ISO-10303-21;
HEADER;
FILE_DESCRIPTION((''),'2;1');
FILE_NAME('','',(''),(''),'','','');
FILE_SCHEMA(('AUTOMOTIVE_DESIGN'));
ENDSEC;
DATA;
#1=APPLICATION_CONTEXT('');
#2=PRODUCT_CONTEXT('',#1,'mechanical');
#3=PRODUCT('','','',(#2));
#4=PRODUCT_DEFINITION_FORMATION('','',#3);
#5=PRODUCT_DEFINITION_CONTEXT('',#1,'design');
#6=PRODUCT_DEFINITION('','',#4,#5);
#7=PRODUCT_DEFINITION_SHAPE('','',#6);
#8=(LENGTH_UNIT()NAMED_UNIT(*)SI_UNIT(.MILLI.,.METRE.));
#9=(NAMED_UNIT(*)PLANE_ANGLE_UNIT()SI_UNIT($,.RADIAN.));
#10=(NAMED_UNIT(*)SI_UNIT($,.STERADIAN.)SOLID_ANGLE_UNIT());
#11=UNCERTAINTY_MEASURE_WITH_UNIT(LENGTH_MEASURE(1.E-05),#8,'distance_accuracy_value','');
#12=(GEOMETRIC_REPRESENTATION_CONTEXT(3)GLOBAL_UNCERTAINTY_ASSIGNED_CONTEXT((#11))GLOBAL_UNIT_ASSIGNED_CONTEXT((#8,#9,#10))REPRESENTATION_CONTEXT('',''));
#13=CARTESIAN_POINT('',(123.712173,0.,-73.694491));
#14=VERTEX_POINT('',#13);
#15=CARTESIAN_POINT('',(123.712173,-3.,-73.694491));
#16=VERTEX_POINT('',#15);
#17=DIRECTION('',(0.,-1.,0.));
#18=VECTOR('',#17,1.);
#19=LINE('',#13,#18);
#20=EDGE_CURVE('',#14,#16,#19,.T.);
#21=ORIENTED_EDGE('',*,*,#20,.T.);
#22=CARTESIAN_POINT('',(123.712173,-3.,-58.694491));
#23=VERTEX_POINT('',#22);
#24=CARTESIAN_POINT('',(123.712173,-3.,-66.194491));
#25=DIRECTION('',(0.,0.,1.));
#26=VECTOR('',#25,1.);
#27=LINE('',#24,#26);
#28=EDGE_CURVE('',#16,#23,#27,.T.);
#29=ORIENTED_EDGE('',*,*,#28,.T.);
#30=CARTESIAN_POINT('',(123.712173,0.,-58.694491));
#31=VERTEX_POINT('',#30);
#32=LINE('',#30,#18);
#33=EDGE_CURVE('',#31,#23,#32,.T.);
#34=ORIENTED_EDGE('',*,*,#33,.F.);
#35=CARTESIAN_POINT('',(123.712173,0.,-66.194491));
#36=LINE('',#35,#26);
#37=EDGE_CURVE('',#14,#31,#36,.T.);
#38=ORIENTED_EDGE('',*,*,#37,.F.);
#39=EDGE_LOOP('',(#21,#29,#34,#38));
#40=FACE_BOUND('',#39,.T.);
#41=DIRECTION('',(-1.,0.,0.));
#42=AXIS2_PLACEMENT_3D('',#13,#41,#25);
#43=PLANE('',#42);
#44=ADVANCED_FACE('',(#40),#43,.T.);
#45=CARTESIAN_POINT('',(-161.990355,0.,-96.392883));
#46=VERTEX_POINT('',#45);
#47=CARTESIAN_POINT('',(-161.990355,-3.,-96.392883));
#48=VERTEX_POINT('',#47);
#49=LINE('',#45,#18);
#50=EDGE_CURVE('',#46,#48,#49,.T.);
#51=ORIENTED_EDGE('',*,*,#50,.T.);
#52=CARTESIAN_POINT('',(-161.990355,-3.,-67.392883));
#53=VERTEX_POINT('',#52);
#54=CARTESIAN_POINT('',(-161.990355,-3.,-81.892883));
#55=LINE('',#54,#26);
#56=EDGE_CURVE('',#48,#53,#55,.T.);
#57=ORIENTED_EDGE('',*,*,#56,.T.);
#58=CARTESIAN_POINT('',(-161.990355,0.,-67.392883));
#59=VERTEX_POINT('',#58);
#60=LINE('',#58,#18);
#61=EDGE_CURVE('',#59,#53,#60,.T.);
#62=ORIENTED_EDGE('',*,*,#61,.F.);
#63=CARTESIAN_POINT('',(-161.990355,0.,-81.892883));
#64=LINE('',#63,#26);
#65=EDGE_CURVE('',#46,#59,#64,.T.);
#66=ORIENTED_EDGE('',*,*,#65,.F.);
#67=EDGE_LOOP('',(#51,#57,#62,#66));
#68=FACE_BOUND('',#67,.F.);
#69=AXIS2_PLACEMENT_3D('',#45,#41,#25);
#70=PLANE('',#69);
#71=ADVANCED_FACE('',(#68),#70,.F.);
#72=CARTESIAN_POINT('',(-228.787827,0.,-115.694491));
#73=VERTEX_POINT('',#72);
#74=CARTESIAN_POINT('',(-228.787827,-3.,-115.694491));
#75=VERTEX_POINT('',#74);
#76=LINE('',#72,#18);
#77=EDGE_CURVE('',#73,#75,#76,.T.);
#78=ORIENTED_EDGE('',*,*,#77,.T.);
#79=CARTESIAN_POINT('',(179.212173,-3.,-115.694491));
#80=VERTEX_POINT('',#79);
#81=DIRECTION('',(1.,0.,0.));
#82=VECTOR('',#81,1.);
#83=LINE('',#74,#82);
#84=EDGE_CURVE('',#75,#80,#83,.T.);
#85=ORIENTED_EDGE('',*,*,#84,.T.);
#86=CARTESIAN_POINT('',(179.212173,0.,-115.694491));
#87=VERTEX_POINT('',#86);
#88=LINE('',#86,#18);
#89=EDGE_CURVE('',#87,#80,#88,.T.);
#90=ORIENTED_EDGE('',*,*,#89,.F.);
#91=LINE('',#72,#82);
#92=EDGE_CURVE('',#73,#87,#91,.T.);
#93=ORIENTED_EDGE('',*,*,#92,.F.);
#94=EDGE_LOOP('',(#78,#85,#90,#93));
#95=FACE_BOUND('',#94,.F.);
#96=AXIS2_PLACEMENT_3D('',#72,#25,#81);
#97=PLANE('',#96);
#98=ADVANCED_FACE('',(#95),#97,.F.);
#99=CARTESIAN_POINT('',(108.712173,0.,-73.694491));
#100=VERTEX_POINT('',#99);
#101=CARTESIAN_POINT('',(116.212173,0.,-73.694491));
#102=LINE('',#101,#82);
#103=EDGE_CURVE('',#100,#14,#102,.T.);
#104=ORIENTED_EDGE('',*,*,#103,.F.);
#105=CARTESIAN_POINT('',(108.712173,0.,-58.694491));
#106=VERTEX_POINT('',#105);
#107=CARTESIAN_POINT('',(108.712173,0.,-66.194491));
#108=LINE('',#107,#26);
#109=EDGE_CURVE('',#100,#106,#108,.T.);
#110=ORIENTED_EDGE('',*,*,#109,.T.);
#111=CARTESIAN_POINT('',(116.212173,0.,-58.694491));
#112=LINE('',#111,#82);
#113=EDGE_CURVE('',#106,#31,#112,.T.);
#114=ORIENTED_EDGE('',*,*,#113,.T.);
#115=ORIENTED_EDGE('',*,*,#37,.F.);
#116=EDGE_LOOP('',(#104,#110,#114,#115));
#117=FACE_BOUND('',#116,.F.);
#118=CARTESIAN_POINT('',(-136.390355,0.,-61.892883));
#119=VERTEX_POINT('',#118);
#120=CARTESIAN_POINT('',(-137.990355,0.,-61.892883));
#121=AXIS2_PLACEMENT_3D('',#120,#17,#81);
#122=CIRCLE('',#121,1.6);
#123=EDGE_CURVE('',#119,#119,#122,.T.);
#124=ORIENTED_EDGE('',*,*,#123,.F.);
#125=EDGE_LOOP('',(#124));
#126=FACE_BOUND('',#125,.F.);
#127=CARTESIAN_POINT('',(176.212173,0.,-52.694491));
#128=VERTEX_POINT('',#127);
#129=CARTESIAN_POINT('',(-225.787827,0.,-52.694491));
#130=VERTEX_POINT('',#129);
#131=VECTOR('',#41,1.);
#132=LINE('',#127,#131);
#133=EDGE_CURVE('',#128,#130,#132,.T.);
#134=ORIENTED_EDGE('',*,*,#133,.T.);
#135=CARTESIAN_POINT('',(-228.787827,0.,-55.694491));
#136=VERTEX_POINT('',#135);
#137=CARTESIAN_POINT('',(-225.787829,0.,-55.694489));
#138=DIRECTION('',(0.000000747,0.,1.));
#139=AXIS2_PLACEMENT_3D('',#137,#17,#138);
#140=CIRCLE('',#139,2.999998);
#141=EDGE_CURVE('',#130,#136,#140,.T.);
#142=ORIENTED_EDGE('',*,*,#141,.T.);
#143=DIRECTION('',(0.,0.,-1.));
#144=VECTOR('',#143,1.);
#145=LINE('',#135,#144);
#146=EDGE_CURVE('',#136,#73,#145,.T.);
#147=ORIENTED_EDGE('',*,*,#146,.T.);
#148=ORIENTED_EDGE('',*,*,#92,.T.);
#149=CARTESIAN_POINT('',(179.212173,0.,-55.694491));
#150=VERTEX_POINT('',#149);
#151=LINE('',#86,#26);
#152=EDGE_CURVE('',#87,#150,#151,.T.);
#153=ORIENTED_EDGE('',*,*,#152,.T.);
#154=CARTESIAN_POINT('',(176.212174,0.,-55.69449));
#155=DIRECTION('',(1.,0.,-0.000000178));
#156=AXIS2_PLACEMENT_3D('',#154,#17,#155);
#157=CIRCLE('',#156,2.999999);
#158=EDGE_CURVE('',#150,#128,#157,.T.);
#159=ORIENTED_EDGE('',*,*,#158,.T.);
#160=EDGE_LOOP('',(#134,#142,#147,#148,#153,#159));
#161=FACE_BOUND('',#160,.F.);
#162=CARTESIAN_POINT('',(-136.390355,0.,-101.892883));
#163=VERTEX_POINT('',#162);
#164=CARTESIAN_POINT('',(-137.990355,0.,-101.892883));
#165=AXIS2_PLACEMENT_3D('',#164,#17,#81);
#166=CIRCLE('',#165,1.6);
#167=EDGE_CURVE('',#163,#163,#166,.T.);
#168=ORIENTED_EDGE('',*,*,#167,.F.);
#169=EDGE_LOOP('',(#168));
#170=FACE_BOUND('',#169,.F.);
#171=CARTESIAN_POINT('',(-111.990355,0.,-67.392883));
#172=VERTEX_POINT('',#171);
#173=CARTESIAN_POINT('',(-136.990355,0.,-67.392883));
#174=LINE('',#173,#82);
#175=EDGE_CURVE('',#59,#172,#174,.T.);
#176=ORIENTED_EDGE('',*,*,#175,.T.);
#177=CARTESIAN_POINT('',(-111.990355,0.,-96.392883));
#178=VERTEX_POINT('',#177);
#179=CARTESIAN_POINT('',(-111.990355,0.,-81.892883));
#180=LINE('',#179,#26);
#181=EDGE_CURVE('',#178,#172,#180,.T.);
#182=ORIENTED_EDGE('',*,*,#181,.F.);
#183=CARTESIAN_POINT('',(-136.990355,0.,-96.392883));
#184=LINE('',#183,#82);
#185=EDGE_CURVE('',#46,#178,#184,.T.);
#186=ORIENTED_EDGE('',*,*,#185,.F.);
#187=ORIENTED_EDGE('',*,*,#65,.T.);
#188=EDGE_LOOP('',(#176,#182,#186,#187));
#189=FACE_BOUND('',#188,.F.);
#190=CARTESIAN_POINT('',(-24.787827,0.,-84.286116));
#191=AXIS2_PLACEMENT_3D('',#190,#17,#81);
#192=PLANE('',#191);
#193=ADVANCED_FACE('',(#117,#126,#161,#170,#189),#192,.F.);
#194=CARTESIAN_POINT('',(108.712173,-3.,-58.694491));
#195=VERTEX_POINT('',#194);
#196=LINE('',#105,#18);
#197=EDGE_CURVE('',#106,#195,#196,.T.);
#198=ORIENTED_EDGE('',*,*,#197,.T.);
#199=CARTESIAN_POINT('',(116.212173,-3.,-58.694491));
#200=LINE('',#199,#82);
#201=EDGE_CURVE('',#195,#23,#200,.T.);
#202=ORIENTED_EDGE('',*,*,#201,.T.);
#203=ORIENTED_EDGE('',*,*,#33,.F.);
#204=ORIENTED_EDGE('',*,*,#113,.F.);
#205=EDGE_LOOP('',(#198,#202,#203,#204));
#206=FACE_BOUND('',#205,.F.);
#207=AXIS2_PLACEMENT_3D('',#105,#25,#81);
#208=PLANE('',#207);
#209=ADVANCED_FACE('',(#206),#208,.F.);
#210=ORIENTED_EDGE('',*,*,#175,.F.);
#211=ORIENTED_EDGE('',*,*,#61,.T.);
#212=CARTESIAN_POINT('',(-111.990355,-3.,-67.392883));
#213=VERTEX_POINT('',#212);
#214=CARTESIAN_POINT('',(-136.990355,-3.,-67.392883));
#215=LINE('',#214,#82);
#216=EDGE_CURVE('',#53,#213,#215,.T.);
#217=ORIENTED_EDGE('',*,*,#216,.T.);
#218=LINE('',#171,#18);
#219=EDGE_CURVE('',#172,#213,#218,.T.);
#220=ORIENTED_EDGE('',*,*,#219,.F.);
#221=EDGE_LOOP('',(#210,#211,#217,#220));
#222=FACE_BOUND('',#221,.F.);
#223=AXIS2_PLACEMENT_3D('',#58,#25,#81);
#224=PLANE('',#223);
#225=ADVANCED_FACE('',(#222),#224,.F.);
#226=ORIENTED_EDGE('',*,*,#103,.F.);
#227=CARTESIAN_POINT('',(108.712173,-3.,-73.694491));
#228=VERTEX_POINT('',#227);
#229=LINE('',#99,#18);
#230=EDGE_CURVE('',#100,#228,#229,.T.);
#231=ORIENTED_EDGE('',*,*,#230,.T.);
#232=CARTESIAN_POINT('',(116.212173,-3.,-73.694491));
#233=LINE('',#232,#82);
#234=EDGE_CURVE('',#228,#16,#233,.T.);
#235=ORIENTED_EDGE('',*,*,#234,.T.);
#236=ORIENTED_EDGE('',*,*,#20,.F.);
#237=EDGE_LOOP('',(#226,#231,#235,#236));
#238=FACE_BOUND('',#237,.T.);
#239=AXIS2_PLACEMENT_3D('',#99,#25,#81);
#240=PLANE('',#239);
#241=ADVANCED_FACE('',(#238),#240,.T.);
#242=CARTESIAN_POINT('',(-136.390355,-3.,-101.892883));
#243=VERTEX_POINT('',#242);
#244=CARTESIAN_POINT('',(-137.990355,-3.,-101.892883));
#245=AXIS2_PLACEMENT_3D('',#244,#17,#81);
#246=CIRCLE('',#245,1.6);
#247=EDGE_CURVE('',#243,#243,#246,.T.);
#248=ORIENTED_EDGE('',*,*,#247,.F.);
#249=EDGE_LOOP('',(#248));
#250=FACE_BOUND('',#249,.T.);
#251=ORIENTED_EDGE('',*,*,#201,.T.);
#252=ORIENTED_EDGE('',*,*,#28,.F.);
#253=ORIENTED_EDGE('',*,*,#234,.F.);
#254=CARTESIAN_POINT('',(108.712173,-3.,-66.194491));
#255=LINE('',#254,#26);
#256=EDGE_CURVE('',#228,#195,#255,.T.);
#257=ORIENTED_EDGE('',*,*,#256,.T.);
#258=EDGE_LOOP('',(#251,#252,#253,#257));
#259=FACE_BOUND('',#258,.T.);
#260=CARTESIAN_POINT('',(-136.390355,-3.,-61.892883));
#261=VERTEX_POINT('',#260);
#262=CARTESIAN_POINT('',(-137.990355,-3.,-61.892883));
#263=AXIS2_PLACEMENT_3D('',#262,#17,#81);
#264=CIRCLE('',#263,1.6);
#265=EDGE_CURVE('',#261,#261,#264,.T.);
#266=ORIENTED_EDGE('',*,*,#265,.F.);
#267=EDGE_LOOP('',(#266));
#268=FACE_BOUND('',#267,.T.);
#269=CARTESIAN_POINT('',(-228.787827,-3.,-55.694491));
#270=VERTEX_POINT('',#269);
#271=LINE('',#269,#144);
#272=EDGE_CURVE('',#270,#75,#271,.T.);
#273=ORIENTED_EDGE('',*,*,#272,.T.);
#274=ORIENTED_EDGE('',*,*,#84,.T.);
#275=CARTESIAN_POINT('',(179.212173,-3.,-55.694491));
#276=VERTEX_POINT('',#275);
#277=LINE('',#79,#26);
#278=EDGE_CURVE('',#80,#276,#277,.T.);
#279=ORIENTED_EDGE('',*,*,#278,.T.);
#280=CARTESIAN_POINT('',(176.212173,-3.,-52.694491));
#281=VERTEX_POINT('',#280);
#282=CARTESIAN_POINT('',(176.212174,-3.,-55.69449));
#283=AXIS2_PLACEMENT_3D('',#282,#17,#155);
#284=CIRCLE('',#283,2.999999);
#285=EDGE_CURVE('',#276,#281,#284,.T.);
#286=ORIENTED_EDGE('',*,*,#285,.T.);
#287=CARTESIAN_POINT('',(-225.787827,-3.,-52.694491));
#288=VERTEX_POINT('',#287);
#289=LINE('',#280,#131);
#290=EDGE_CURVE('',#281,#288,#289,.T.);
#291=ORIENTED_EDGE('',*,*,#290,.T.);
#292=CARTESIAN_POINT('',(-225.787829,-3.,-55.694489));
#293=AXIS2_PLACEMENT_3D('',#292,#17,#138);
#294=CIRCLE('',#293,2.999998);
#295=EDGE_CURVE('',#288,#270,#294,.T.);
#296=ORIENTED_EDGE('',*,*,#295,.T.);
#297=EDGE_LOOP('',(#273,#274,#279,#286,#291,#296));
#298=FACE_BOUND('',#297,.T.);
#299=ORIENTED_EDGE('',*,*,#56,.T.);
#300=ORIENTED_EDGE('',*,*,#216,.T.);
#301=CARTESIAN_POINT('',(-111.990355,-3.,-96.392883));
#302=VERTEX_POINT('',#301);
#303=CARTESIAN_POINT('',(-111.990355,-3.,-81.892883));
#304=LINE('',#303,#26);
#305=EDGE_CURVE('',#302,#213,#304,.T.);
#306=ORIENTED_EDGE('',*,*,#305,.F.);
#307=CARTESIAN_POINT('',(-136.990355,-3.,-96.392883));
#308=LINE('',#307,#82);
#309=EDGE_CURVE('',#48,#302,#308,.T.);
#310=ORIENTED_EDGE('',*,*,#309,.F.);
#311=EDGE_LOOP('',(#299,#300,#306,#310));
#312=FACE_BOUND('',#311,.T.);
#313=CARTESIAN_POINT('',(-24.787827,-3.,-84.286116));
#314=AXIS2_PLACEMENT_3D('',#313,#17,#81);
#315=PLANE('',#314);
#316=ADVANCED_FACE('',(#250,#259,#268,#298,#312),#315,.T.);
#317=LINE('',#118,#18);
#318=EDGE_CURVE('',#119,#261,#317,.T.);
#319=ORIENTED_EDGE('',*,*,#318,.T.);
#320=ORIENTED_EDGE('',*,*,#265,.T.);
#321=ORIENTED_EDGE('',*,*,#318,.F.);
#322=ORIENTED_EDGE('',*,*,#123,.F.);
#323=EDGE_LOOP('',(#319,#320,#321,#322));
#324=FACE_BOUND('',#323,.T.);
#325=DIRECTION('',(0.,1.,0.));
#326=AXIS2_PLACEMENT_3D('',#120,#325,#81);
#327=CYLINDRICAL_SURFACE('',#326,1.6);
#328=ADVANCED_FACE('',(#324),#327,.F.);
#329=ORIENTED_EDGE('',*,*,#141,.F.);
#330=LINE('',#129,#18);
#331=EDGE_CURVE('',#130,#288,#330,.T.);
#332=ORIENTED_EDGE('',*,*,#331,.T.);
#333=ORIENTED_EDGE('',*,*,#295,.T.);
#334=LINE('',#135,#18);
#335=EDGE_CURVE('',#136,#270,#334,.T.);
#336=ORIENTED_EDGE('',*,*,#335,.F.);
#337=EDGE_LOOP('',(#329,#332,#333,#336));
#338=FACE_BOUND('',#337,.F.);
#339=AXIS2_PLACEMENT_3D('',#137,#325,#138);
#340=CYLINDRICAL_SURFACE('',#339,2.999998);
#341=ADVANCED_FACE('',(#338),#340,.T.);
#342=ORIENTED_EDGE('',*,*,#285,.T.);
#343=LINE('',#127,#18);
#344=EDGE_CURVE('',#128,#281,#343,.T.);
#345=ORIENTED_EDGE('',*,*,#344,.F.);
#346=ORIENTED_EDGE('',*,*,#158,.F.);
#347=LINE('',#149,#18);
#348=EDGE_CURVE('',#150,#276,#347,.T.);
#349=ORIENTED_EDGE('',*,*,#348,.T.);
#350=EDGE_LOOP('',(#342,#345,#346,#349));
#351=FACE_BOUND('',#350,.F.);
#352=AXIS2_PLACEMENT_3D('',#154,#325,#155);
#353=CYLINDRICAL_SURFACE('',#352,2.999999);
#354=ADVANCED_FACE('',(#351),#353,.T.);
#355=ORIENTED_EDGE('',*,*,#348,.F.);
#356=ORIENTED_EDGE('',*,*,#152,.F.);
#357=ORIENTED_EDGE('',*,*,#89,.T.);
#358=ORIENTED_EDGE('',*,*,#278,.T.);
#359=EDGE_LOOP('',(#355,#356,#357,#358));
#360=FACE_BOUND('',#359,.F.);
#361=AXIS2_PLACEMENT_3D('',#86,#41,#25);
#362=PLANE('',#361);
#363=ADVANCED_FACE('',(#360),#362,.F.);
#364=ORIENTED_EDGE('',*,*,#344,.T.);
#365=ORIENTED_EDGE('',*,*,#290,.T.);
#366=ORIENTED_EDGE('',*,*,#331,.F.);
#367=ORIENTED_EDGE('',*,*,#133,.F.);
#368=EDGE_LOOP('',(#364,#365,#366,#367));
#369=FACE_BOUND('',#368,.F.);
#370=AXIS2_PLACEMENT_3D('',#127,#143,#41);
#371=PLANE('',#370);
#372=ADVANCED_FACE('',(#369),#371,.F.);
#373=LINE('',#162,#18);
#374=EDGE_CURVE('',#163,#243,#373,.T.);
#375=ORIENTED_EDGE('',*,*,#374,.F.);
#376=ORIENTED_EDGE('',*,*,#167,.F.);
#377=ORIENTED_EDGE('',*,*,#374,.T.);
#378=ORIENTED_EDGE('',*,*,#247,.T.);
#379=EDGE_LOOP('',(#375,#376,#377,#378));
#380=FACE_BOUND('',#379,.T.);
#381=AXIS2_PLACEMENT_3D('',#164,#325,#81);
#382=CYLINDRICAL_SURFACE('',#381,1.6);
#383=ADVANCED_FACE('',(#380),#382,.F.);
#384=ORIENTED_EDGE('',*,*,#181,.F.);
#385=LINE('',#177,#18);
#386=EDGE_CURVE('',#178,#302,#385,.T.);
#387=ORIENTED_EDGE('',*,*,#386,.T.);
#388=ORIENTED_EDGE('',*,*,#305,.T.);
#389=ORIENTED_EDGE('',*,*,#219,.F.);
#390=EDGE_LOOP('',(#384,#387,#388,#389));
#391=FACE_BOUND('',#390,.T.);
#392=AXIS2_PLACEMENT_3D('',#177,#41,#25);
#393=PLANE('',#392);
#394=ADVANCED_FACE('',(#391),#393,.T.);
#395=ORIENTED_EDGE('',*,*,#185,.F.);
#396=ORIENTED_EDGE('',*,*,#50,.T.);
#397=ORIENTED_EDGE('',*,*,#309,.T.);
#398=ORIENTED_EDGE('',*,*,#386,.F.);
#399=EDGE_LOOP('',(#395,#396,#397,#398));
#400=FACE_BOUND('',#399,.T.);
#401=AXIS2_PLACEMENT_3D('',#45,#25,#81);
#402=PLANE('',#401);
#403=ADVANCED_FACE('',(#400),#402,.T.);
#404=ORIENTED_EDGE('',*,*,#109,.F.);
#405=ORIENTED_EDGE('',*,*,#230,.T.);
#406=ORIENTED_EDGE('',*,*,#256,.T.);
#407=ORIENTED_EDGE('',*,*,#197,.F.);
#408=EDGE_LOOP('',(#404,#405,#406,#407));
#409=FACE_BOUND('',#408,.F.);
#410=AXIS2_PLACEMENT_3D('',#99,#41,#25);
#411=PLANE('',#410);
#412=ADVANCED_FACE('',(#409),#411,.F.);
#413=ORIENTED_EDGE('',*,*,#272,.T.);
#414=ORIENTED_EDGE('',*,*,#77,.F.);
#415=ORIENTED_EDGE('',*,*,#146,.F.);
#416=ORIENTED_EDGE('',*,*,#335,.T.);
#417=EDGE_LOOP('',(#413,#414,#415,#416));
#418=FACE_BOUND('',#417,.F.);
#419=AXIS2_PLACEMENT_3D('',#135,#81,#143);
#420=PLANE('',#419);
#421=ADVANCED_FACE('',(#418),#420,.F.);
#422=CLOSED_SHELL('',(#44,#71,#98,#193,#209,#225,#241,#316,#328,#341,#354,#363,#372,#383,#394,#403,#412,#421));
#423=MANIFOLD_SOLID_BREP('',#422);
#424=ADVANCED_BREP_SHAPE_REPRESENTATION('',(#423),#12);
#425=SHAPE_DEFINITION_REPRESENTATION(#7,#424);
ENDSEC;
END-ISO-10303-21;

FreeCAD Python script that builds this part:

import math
import FreeCAD as App
import Part
import Sketcher
from FreeCAD import Vector

doc = App.newDocument("Part")
body = doc.addObject("PartDesign::Body", "Body")

# Sketch on XZ plane
sketch1 = doc.addObject("Sketcher::SketchObject", "Sketch")
body.addObject(sketch1)
sketch1.AttachmentSupport = (doc.XZ_Plane, [""])
sketch1.MapMode = "FlatFace"
sketch1.addGeometry(Part.LineSegment(Vector(176.2, -52.7, 0), Vector(-225.8, -52.7, 0)), False)
sketch1.addGeometry(Part.ArcOfCircle(Part.Circle(Vector(-225.8, -55.7, 0), Vector(0, 0, 1), 3), math.radians(90), math.radians(180)), False)
sketch1.addGeometry(Part.LineSegment(Vector(-228.8, -55.7, 0), Vector(-228.8, -115.7, 0)), False)
sketch1.addGeometry(Part.LineSegment(Vector(-228.8, -115.7, 0), Vector(179.2, -115.7, 0)), False)
sketch1.addGeometry(Part.LineSegment(Vector(179.2, -115.7, 0), Vector(179.2, -55.7, 0)), False)
sketch1.addGeometry(Part.ArcOfCircle(Part.Circle(Vector(176.2, -55.7, 0), Vector(0, 0, 1), 3), math.radians(0), math.radians(90)), False)
sketch1.addGeometry(Part.Circle(Vector(-138, -101.9, 0), Vector(0, 0, 1), 1.6), False)
sketch1.addGeometry(Part.LineSegment(Vector(-112, -96.4, 0), Vector(-162, -96.4, 0)), False)
sketch1.addGeometry(Part.LineSegment(Vector(-162, -96.4, 0), Vector(-162, -67.4, 0)), False)
sketch1.addGeometry(Part.LineSegment(Vector(-162, -67.4, 0), Vector(-112, -67.4, 0)), False)
sketch1.addGeometry(Part.LineSegment(Vector(-112, -67.4, 0), Vector(-112, -96.4, 0)), False)
sketch1.addGeometry(Part.Circle(Vector(-138, -61.9, 0), Vector(0, 0, 1), 1.6), False)
sketch1.addGeometry(Part.LineSegment(Vector(123.7, -73.7, 0), Vector(108.7, -73.7, 0)), False)
sketch1.addGeometry(Part.LineSegment(Vector(108.7, -73.7, 0), Vector(108.7, -58.7, 0)), False)
sketch1.addGeometry(Part.LineSegment(Vector(108.7, -58.7, 0), Vector(123.7, -58.7, 0)), False)
sketch1.addGeometry(Part.LineSegment(Vector(123.7, -58.7, 0), Vector(123.7, -73.7, 0)), False)
sketch1.addConstraint(Sketcher.Constraint("Tangent", 0, 2, 1, 1))
sketch1.addConstraint(Sketcher.Constraint("Tangent", 1, 2, 2, 1))
sketch1.addConstraint(Sketcher.Constraint("Coincident", 2, 2, 3, 1))
sketch1.addConstraint(Sketcher.Constraint("Coincident", 3, 2, 4, 1))
sketch1.addConstraint(Sketcher.Constraint("Tangent", 4, 2, 5, 1))
sketch1.addConstraint(Sketcher.Constraint("Tangent", 5, 2, 0, 1))
sketch1.addConstraint(Sketcher.Constraint("Coincident", 7, 2, 8, 1))
sketch1.addConstraint(Sketcher.Constraint("Coincident", 8, 2, 9, 1))
sketch1.addConstraint(Sketcher.Constraint("Coincident", 9, 2, 10, 1))
sketch1.addConstraint(Sketcher.Constraint("Coincident", 10, 2, 7, 1))
sketch1.addConstraint(Sketcher.Constraint("Coincident", 12, 2, 13, 1))
sketch1.addConstraint(Sketcher.Constraint("Coincident", 13, 2, 14, 1))
sketch1.addConstraint(Sketcher.Constraint("Coincident", 14, 2, 15, 1))
sketch1.addConstraint(Sketcher.Constraint("Coincident", 15, 2, 12, 1))
sketch1.addConstraint(Sketcher.Constraint("Horizontal", 0))
sketch1.addConstraint(Sketcher.Constraint("Vertical", 2))
sketch1.addConstraint(Sketcher.Constraint("Horizontal", 3))
sketch1.addConstraint(Sketcher.Constraint("Vertical", 4))
sketch1.addConstraint(Sketcher.Constraint("Horizontal", 7))
sketch1.addConstraint(Sketcher.Constraint("Vertical", 8))
sketch1.addConstraint(Sketcher.Constraint("Horizontal", 9))
sketch1.addConstraint(Sketcher.Constraint("Vertical", 10))
sketch1.addConstraint(Sketcher.Constraint("Horizontal", 12))
sketch1.addConstraint(Sketcher.Constraint("Vertical", 13))
sketch1.addConstraint(Sketcher.Constraint("Horizontal", 14))
sketch1.addConstraint(Sketcher.Constraint("Vertical", 15))
sketch1.addConstraint(Sketcher.Constraint("Equal", 1, 5))
sketch1.addConstraint(Sketcher.Constraint("Equal", 6, 11))
sketch1.addConstraint(Sketcher.Constraint("Vertical", 6, 3, 11, 3))
sketch1.addConstraint(Sketcher.Constraint("Equal", 14, 13))
sketch1.addConstraint(Sketcher.Constraint("Radius", 5, 2.999999))
sketch1.addConstraint(Sketcher.Constraint("Diameter", 6, 3.2))
sketch1.addConstraint(Sketcher.Constraint("DistanceX", 0, 2, 0, 1, 402.0))
sketch1.addConstraint(Sketcher.Constraint("DistanceX", 7, 2, 7, 1, 50.0))
sketch1.addConstraint(Sketcher.Constraint("DistanceX", 12, 2, 12, 1, 15.0))
sketch1.addConstraint(Sketcher.Constraint("DistanceY", 2, 2, 2, 1, 60.0))
sketch1.addConstraint(Sketcher.Constraint("DistanceY", 8, 1, 8, 2, 29.0))
sketch1.addConstraint(Sketcher.Constraint("DistanceY", 6, 3, 11, 3, 40.0))
sketch1.addConstraint(Sketcher.Constraint("DistanceX", 7, 2, 6, 3, 24.0))
sketch1.addConstraint(Sketcher.Constraint("DistanceY", 12, 2, 5, 3, 18.000001))
sketch1.addConstraint(Sketcher.Constraint("DistanceY", 6, 3, 7, 2, 5.5))
sketch1.addConstraint(Sketcher.Constraint("DistanceX", 12, 2, 5, 3, 67.500001))
sketch1.addConstraint(Sketcher.Constraint("DistanceX", 1, 3, -1, 1, 225.787829))
sketch1.addConstraint(Sketcher.Constraint("DistanceY", 1, 3, -1, 1, 55.694489))
sketch1.addConstraint(Sketcher.Constraint("DistanceX", 6, 3, 5, 3, 314.202529))
sketch1.addConstraint(Sketcher.Constraint("DistanceY", 11, 3, 0, 2, 9.198392))
pad1 = doc.addObject("PartDesign::Pad", "Pad")
body.addObject(pad1)
pad1.Profile = sketch1
pad1.Length = 3

doc.recompute()
